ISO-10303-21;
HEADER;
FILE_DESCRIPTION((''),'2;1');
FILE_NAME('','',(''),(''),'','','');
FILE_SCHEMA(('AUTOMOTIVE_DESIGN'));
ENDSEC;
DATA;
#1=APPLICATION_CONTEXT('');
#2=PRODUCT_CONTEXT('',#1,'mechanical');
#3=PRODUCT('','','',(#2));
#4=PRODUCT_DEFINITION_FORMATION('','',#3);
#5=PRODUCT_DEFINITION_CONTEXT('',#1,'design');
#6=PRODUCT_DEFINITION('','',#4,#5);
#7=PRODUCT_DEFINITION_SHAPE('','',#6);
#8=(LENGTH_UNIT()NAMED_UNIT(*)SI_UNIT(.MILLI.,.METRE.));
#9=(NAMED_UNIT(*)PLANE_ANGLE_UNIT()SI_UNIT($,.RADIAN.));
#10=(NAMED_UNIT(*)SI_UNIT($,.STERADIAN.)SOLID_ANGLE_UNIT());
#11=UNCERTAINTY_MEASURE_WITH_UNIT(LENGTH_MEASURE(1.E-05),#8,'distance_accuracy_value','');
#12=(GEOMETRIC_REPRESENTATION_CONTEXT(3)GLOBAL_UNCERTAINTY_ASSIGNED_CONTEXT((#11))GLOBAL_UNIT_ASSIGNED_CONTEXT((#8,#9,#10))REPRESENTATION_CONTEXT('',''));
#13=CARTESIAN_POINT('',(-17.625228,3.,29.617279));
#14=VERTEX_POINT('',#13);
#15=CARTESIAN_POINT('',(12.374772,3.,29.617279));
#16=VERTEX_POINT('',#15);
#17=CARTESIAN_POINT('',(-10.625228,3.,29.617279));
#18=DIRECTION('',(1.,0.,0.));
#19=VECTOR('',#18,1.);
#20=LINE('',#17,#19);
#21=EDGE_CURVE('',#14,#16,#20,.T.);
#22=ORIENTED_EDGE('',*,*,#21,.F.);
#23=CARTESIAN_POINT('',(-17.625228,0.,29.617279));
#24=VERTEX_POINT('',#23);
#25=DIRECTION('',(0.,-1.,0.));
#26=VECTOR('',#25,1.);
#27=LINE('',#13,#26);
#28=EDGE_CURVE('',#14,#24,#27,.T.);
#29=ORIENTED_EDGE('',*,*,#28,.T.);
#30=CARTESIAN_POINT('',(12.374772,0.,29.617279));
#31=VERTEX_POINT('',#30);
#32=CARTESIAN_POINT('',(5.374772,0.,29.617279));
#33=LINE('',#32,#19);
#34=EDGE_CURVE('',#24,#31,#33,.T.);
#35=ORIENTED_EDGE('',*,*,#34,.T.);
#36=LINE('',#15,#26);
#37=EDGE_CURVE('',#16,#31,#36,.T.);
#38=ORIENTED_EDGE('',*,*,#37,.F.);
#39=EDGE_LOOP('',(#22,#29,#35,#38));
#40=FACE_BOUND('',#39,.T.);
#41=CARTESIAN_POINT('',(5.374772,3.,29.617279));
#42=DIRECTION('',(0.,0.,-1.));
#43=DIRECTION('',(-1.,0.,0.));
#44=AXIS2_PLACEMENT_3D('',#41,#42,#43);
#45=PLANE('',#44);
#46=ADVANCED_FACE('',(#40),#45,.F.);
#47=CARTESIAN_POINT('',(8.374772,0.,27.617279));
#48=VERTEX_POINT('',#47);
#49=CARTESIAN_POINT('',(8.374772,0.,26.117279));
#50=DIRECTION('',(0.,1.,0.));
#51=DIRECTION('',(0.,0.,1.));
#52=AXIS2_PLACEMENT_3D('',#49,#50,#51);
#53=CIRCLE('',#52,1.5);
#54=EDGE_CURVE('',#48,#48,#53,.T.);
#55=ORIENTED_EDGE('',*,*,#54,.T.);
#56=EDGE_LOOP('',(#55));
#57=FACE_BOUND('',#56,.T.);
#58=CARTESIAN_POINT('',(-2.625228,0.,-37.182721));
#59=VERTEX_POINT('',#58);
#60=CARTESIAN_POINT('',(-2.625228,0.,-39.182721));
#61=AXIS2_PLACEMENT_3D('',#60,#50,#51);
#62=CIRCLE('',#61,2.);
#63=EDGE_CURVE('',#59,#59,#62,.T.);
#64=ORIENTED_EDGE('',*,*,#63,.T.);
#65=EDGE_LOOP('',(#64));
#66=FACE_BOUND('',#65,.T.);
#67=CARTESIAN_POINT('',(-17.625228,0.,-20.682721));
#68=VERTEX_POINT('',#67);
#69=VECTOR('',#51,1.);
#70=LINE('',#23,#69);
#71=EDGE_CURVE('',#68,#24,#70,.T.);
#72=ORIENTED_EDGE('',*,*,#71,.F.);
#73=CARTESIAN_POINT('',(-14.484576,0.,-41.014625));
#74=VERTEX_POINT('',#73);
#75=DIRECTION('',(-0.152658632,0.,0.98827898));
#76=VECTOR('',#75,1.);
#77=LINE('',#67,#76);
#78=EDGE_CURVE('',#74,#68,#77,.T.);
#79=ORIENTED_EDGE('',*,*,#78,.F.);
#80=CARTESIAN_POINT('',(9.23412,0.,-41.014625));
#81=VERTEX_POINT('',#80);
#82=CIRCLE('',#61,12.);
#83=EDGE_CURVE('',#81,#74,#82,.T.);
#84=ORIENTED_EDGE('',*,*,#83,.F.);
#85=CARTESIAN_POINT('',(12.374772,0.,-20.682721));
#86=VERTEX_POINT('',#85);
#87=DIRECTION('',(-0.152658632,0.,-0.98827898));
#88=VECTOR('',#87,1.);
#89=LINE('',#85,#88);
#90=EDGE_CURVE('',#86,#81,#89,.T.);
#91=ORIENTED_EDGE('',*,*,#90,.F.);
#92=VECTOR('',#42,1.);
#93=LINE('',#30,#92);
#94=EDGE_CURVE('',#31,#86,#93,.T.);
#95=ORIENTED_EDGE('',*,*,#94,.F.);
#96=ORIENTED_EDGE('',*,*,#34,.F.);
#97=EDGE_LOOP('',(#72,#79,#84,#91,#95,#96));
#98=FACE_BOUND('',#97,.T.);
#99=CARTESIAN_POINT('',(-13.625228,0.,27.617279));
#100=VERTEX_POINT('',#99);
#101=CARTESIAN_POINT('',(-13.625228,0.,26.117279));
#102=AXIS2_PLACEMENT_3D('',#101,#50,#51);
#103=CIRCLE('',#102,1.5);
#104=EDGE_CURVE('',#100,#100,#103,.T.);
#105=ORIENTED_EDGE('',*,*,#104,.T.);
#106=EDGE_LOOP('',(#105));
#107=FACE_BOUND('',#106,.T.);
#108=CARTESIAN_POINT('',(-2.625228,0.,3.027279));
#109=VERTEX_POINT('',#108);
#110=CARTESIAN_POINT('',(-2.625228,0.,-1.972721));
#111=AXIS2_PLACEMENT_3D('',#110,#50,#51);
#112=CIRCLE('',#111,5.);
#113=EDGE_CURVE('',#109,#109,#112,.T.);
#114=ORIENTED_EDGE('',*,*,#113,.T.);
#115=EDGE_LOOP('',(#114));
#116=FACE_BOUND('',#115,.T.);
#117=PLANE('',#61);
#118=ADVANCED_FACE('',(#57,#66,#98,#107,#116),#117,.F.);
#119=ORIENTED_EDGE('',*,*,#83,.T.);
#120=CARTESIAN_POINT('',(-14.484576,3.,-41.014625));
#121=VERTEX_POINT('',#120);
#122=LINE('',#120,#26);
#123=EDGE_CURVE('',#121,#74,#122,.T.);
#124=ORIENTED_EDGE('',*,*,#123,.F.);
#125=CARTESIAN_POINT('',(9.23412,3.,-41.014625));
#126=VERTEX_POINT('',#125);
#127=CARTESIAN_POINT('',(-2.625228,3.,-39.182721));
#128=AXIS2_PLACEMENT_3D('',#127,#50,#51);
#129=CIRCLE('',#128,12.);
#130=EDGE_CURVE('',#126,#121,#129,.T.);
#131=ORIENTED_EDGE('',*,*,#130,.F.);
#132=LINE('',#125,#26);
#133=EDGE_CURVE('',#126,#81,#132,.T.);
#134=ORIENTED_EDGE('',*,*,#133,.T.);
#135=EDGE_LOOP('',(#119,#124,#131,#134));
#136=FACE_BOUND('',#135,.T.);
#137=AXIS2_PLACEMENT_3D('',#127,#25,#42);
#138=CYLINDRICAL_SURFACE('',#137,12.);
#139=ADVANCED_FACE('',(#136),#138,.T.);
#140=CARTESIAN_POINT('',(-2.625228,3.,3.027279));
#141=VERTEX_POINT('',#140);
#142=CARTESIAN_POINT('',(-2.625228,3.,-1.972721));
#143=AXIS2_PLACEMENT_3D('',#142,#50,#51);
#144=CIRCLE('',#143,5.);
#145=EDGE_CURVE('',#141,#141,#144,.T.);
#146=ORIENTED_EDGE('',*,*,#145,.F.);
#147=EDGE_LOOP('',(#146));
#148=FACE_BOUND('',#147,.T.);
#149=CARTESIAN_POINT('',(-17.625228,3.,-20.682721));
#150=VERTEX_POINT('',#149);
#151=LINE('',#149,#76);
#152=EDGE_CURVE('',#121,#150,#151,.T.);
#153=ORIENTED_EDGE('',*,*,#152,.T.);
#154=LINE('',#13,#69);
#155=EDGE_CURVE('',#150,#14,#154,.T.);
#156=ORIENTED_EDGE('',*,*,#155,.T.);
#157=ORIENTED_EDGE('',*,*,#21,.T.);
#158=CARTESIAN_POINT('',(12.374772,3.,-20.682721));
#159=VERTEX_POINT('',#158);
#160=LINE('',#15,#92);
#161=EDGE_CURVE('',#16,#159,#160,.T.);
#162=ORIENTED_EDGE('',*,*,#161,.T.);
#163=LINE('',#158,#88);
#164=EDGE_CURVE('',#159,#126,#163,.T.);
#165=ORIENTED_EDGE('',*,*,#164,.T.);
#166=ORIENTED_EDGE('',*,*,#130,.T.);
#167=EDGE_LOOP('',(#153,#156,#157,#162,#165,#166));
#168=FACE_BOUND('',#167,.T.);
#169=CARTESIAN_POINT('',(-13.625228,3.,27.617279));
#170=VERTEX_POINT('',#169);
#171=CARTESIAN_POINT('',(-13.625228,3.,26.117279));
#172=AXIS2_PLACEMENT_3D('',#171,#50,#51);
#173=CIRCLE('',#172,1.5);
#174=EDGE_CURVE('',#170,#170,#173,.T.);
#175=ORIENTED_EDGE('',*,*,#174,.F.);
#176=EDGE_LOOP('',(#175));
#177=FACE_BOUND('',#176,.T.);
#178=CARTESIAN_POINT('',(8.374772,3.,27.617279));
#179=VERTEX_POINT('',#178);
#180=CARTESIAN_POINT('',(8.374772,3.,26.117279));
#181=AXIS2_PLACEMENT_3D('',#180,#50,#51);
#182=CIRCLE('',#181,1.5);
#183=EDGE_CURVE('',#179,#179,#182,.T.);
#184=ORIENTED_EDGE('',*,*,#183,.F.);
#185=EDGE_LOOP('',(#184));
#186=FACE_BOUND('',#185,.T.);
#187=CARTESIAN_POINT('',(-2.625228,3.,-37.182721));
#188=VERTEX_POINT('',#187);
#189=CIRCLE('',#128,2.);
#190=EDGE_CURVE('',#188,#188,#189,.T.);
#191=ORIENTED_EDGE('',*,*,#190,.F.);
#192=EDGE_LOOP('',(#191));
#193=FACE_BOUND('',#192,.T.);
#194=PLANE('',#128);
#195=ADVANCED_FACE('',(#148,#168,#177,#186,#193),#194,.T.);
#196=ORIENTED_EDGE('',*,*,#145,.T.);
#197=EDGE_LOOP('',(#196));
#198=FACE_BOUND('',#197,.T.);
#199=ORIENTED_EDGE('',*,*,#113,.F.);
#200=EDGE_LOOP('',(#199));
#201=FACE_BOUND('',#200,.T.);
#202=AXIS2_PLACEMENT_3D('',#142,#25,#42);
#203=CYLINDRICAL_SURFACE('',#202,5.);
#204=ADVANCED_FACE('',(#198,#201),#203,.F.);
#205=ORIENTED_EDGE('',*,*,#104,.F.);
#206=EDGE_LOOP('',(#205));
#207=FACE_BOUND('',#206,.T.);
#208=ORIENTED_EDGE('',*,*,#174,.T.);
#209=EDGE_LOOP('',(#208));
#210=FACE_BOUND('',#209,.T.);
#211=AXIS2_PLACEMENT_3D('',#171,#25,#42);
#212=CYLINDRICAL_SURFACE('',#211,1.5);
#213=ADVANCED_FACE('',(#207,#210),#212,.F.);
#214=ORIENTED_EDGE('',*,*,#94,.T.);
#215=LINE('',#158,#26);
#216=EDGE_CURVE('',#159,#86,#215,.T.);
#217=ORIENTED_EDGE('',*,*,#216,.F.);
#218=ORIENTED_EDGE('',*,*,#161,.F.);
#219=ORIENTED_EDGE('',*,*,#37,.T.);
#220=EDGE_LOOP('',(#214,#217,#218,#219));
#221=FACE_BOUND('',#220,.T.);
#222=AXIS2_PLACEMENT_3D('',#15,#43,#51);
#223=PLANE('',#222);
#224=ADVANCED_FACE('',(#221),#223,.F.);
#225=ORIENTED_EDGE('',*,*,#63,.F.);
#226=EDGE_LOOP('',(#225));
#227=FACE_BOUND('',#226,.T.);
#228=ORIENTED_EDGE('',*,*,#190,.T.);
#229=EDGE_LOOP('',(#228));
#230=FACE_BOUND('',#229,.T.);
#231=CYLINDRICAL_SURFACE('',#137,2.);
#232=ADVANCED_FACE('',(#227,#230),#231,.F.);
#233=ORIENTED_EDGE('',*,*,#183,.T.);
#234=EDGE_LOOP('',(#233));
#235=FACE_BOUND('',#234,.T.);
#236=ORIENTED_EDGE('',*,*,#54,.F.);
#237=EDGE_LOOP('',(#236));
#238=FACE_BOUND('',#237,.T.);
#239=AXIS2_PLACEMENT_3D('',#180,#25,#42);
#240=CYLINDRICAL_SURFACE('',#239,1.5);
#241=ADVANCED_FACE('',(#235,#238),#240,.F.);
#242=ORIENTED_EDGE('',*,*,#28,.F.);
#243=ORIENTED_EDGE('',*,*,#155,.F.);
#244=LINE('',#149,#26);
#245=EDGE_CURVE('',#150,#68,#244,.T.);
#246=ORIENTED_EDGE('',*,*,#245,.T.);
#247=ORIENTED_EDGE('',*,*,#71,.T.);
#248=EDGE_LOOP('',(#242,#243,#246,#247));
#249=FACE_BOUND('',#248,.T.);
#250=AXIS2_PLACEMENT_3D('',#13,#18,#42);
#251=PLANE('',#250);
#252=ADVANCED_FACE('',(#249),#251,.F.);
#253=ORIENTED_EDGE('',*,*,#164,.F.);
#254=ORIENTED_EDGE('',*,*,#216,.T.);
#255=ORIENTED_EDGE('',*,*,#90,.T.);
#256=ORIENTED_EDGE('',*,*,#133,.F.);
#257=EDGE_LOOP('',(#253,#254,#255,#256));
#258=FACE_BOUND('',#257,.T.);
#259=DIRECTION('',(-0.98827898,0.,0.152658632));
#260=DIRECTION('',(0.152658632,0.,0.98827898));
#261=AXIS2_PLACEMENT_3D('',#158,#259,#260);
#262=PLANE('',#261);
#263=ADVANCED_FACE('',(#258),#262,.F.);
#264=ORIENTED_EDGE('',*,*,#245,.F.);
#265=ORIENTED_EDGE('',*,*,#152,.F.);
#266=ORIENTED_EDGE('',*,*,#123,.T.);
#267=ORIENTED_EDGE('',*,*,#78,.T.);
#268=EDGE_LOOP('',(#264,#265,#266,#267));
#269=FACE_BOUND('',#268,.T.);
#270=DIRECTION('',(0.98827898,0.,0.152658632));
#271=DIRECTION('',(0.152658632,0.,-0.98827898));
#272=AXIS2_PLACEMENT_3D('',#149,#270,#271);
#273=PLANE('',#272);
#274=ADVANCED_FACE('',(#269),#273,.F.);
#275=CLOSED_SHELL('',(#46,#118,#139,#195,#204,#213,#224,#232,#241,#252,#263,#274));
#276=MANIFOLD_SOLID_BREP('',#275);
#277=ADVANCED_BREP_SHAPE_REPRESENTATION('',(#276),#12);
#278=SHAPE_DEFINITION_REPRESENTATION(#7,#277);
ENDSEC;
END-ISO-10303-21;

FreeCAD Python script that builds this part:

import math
import FreeCAD as App
import Part
import Sketcher
from FreeCAD import Vector
Q = App.Units.Quantity

doc = App.newDocument("Part")
body = doc.addObject("PartDesign::Body", "Body")

sketch1 = doc.addObject("Sketcher::SketchObject", "Sketch")
body.addObject(sketch1)
sketch1.AttachmentSupport = (doc.XZ_Plane, [""])
sketch1.MapMode = "FlatFace"
sketch1.addGeometry([
    Part.LineSegment(Vector(12.374772, 29.617279, 0), Vector(12.374772, -20.682721, 0)),
    Part.LineSegment(Vector(12.374772, -20.682721, 0), Vector(9.23412, -41.014625, 0)),
    Part.ArcOfCircle(Part.Circle(Vector(-2.625228, -39.182721, 0), Vector(0, 0, 1), 12), math.radians(-171.21897), math.radians(-8.78103)),
    Part.LineSegment(Vector(-14.484576, -41.014625, 0), Vector(-17.625228, -20.682721, 0)),
    Part.LineSegment(Vector(-17.625228, -20.682721, 0), Vector(-17.625228, 29.617279, 0)),
    Part.LineSegment(Vector(-17.625228, 29.617279, 0), Vector(12.374772, 29.617279, 0)),
    Part.Circle(Vector(-13.625228, 26.117279, 0), Vector(0, 0, 1), 1.5),
    Part.Circle(Vector(8.374772, 26.117279, 0), Vector(0, 0, 1), 1.5),
    Part.Circle(Vector(-2.625228, -1.972721, 0), Vector(0, 0, 1), 5),
    Part.Circle(Vector(-2.625228, -39.182721, 0), Vector(0, 0, 1), 2),
], False)
sketch1.addConstraint([
    Sketcher.Constraint("Coincident", 0, 2, 1, 1),
    Sketcher.Constraint("Tangent", 1, 2, 2, 2),
    Sketcher.Constraint("Tangent", 2, 1, 3, 1),
    Sketcher.Constraint("Coincident", 3, 2, 4, 1),
    Sketcher.Constraint("Coincident", 4, 2, 5, 1),
    Sketcher.Constraint("Coincident", 5, 2, 0, 1),
    Sketcher.Constraint("Vertical", 0),
    Sketcher.Constraint("Vertical", 4),
    Sketcher.Constraint("Horizontal", 5),
    Sketcher.Constraint("Coincident", 9, 3, 2, 3),
    Sketcher.Constraint("Equal", 6, 7),
    Sketcher.Constraint("Horizontal", 6, 3, 7, 3),
    Sketcher.Constraint("Horizontal", 1, 2, 2, 1),
    Sketcher.Constraint("Horizontal", 0, 2, 3, 2),
    Sketcher.Constraint("Vertical", 2, 3, 8, 3),
    Sketcher.Constraint("Diameter", 6, Q("3 mm")),
    Sketcher.Constraint("Diameter", 8, Q("10 mm")),
    Sketcher.Constraint("Diameter", 9, Q("4 mm")),
    Sketcher.Constraint("Radius", 2, Q("12 mm")),
    Sketcher.Constraint("DistanceX", 5, 1, 5, 2, Q("30 mm")),
    Sketcher.Constraint("DistanceY", 0, 2, 0, 1, Q("50.3 mm")),
    Sketcher.Constraint("DistanceX", 6, 3, 2, 3, Q("11 mm")),
    Sketcher.Constraint("DistanceX", 6, 3, 7, 3, Q("22 mm")),
    Sketcher.Constraint("DistanceY", 2, 3, 6, 3, Q("65.3 mm")),
    Sketcher.Constraint("DistanceY", 2, 3, 0, 2, Q("18.5 mm")),
    Sketcher.Constraint("DistanceY", 8, 3, 6, 3, Q("28.09 mm")),
    Sketcher.Constraint("DistanceY", 2, 3, -1, 1, Q("39.182721 mm")),
    Sketcher.Constraint("DistanceX", -1, 1, 1, 2, Q("9.23412 mm")),
])
pad1 = doc.addObject("PartDesign::Pad", "Pad")
body.addObject(pad1)
pad1.Profile = sketch1
pad1.Length = 3
pad1.Reversed = True

doc.recompute()
